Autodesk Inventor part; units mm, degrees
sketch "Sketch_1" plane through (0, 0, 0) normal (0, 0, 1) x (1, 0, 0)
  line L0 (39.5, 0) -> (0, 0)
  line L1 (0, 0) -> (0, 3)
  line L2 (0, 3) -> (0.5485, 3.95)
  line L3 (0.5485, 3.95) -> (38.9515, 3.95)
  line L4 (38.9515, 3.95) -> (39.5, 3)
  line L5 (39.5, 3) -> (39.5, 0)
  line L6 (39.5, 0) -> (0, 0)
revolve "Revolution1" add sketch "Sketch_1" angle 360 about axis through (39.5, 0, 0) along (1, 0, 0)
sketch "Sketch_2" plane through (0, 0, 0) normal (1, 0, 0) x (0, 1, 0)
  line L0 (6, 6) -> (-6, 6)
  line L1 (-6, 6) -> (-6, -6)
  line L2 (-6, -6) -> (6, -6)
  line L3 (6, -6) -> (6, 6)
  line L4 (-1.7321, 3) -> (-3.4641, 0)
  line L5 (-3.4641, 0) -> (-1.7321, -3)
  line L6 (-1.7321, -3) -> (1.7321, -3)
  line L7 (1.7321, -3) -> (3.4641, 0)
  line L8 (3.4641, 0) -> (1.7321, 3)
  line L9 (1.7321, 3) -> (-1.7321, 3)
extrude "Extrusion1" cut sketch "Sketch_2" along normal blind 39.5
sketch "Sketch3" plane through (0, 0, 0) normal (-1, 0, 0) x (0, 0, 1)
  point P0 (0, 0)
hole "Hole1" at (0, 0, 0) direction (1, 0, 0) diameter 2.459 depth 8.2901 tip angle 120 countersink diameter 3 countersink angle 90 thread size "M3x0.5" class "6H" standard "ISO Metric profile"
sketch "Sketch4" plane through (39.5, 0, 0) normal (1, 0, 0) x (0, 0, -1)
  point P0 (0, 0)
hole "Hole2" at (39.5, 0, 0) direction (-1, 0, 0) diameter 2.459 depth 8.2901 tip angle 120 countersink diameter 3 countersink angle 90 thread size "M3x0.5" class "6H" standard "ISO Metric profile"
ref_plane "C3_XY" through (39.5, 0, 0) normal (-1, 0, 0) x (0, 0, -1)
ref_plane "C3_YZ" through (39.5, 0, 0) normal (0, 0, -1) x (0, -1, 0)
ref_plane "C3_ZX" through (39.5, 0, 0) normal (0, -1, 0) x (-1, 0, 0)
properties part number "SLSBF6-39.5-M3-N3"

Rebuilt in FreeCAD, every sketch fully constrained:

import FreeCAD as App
import Part
import Sketcher

V = App.Vector
Q = App.Units.Quantity


def add_polygon(sketch, points):
    """Adds a closed chain of lines whose ends are joined by coincident constraints."""
    first, n = sketch.GeometryCount, len(points)
    for a, b in zip(points, points[1:] + points[:1]):
        sketch.addGeometry(Part.LineSegment(App.Vector(*a, 0), App.Vector(*b, 0)), False)
    for i in range(n):
        sketch.addConstraint(Sketcher.Constraint("Coincident", first + i, 2, first + (i + 1) % n, 1))

doc = App.newDocument("Part")
body = doc.addObject("PartDesign::Body", "Body")

# Sketch on XY plane
sketch1 = doc.addObject("Sketcher::SketchObject", "Sketch")
body.addObject(sketch1)
sketch1.AttachmentSupport = (doc.XY_Plane, [""])
sketch1.MapMode = "FlatFace"
add_polygon(sketch1, [(0, 0), (39.5, 0), (39.5, 3), (39, 4), (0.5, 4), (0, 3)])  # lines 0-5
sketch1.addConstraint([
    Sketcher.Constraint("Horizontal", 0),
    Sketcher.Constraint("Vertical", 1),
    Sketcher.Constraint("Horizontal", 3),
    Sketcher.Constraint("Vertical", 5),
    Sketcher.Constraint("Coincident", 5, 2, -1, 1),
    Sketcher.Constraint("Horizontal", 1, 2, 4, 2),
    Sketcher.Constraint("Equal", 2, 4),
    Sketcher.Constraint("DistanceY", 1, 1, 1, 2, 3.0),
    Sketcher.Constraint("Angle", 2, Q("120.0008 deg")),
    Sketcher.Constraint("DistanceX", 0, 1, 0, 2, 39.5),
    Sketcher.Constraint("DistanceX", 3, 2, 3, 1, 38.403),
])
revolution = doc.addObject("PartDesign::Revolution", "Revolution")
body.addObject(revolution)
revolution.Profile = sketch1
revolution.ReferenceAxis = (sketch1, ["H_Axis"])
revolution.Angle = 360

# Sketch on YZ plane
sketch2 = doc.addObject("Sketcher::SketchObject", "Sketch001")
body.addObject(sketch2)
sketch2.AttachmentSupport = (doc.YZ_Plane, [""])
sketch2.MapMode = "FlatFace"
add_polygon(sketch2, [(6, -6), (6, 6), (-6, 6), (-6, -6)])  # lines 0-3
add_polygon(sketch2, [(-3.5, 0), (-1.7, 3), (1.7, 3), (3.5, 0), (1.7, -3), (-1.7, -3)])  # lines 4-9
sketch2.addConstraint([
    Sketcher.Constraint("Vertical", 0),
    Sketcher.Constraint("Horizontal", 1),
    Sketcher.Constraint("Vertical", 2),
    Sketcher.Constraint("Horizontal", 3),
    Sketcher.Constraint("Horizontal", 5),
    Sketcher.Constraint("Horizontal", 8),
    Sketcher.Constraint("Symmetric", 0, 2, 2, 2, -1, 1),
    Sketcher.Constraint("Symmetric", 4, 2, 7, 2, -1, 1),
    Sketcher.Constraint("Symmetric", 6, 2, 9, 2, -1, 1),
    Sketcher.Constraint("PointOnObject", 6, 2, -1),
    Sketcher.Constraint("Parallel", 6, 9),
    Sketcher.Constraint("Vertical", 5, 2, 7, 2),
    Sketcher.Constraint("Equal", 3, 0),
    Sketcher.Constraint("DistanceX", 1, 2, 1, 1, 12.0),
    Sketcher.Constraint("Angle", 4, Q("60.0007 deg")),
    Sketcher.Constraint("DistanceY", -1, 1, 4, 2, 3.0),
    Sketcher.Constraint("DistanceX", 5, 1, 5, 2, 3.4642),
])
pocket1 = doc.addObject("PartDesign::Pocket", "Pocket")
body.addObject(pocket1)
pocket1.Profile = sketch2
pocket1.Length = 39.5
pocket1.Reversed = True

# Sketch on YZ plane
sketch3 = doc.addObject("Sketcher::SketchObject", "Sketch002")
body.addObject(sketch3)
sketch3.AttachmentSupport = (doc.YZ_Plane, [""])
sketch3.MapMode = "FlatFace"
sketch3.addGeometry(Part.Circle(V(0, 0, 0), V(0, 0, 1), 1.2), False)
sketch3.addConstraint([
    Sketcher.Constraint("Coincident", 0, 3, -1, 1),
    Sketcher.Constraint("Diameter", 0, 2.459),
])
doc.recompute()
hole = doc.addObject("PartDesign::Hole", "Hole")
body.addObject(hole)
hole.Profile = sketch3
hole.ThreadType = "None"
hole.Diameter = 2.459
hole.DepthType = "Dimension"
hole.Depth = 8.2901
hole.DrillPoint = "Angled"
hole.DrillPointAngle = 120
hole.HoleCutType = "Countersink"
hole.HoleCutDiameter = 3
hole.HoleCutCountersinkAngle = 90
hole.Reversed = True

# Sketch on YZ plane
sketch4 = doc.addObject("Sketcher::SketchObject", "Sketch003")
body.addObject(sketch4)
sketch4.AttachmentSupport = (doc.YZ_Plane, [""])
sketch4.MapMode = "FlatFace"
sketch4.AttachmentOffset = App.Placement(V(0, 0, 39.5), App.Rotation())
sketch4.addGeometry(Part.Circle(V(0, 0, 0), V(0, 0, 1), 1.2), False)
sketch4.addConstraint([
    Sketcher.Constraint("Coincident", 0, 3, -1, 1),
    Sketcher.Constraint("Diameter", 0, 2.459),
])
doc.recompute()
hole2 = doc.addObject("PartDesign::Hole", "Hole001")
body.addObject(hole2)
hole2.Profile = sketch4
hole2.ThreadType = "None"
hole2.Diameter = 2.459
hole2.DepthType = "Dimension"
hole2.Depth = 8.2901
hole2.DrillPoint = "Angled"
hole2.DrillPointAngle = 120
hole2.HoleCutType = "Countersink"
hole2.HoleCutDiameter = 3
hole2.HoleCutCountersinkAngle = 90

doc.recompute()
